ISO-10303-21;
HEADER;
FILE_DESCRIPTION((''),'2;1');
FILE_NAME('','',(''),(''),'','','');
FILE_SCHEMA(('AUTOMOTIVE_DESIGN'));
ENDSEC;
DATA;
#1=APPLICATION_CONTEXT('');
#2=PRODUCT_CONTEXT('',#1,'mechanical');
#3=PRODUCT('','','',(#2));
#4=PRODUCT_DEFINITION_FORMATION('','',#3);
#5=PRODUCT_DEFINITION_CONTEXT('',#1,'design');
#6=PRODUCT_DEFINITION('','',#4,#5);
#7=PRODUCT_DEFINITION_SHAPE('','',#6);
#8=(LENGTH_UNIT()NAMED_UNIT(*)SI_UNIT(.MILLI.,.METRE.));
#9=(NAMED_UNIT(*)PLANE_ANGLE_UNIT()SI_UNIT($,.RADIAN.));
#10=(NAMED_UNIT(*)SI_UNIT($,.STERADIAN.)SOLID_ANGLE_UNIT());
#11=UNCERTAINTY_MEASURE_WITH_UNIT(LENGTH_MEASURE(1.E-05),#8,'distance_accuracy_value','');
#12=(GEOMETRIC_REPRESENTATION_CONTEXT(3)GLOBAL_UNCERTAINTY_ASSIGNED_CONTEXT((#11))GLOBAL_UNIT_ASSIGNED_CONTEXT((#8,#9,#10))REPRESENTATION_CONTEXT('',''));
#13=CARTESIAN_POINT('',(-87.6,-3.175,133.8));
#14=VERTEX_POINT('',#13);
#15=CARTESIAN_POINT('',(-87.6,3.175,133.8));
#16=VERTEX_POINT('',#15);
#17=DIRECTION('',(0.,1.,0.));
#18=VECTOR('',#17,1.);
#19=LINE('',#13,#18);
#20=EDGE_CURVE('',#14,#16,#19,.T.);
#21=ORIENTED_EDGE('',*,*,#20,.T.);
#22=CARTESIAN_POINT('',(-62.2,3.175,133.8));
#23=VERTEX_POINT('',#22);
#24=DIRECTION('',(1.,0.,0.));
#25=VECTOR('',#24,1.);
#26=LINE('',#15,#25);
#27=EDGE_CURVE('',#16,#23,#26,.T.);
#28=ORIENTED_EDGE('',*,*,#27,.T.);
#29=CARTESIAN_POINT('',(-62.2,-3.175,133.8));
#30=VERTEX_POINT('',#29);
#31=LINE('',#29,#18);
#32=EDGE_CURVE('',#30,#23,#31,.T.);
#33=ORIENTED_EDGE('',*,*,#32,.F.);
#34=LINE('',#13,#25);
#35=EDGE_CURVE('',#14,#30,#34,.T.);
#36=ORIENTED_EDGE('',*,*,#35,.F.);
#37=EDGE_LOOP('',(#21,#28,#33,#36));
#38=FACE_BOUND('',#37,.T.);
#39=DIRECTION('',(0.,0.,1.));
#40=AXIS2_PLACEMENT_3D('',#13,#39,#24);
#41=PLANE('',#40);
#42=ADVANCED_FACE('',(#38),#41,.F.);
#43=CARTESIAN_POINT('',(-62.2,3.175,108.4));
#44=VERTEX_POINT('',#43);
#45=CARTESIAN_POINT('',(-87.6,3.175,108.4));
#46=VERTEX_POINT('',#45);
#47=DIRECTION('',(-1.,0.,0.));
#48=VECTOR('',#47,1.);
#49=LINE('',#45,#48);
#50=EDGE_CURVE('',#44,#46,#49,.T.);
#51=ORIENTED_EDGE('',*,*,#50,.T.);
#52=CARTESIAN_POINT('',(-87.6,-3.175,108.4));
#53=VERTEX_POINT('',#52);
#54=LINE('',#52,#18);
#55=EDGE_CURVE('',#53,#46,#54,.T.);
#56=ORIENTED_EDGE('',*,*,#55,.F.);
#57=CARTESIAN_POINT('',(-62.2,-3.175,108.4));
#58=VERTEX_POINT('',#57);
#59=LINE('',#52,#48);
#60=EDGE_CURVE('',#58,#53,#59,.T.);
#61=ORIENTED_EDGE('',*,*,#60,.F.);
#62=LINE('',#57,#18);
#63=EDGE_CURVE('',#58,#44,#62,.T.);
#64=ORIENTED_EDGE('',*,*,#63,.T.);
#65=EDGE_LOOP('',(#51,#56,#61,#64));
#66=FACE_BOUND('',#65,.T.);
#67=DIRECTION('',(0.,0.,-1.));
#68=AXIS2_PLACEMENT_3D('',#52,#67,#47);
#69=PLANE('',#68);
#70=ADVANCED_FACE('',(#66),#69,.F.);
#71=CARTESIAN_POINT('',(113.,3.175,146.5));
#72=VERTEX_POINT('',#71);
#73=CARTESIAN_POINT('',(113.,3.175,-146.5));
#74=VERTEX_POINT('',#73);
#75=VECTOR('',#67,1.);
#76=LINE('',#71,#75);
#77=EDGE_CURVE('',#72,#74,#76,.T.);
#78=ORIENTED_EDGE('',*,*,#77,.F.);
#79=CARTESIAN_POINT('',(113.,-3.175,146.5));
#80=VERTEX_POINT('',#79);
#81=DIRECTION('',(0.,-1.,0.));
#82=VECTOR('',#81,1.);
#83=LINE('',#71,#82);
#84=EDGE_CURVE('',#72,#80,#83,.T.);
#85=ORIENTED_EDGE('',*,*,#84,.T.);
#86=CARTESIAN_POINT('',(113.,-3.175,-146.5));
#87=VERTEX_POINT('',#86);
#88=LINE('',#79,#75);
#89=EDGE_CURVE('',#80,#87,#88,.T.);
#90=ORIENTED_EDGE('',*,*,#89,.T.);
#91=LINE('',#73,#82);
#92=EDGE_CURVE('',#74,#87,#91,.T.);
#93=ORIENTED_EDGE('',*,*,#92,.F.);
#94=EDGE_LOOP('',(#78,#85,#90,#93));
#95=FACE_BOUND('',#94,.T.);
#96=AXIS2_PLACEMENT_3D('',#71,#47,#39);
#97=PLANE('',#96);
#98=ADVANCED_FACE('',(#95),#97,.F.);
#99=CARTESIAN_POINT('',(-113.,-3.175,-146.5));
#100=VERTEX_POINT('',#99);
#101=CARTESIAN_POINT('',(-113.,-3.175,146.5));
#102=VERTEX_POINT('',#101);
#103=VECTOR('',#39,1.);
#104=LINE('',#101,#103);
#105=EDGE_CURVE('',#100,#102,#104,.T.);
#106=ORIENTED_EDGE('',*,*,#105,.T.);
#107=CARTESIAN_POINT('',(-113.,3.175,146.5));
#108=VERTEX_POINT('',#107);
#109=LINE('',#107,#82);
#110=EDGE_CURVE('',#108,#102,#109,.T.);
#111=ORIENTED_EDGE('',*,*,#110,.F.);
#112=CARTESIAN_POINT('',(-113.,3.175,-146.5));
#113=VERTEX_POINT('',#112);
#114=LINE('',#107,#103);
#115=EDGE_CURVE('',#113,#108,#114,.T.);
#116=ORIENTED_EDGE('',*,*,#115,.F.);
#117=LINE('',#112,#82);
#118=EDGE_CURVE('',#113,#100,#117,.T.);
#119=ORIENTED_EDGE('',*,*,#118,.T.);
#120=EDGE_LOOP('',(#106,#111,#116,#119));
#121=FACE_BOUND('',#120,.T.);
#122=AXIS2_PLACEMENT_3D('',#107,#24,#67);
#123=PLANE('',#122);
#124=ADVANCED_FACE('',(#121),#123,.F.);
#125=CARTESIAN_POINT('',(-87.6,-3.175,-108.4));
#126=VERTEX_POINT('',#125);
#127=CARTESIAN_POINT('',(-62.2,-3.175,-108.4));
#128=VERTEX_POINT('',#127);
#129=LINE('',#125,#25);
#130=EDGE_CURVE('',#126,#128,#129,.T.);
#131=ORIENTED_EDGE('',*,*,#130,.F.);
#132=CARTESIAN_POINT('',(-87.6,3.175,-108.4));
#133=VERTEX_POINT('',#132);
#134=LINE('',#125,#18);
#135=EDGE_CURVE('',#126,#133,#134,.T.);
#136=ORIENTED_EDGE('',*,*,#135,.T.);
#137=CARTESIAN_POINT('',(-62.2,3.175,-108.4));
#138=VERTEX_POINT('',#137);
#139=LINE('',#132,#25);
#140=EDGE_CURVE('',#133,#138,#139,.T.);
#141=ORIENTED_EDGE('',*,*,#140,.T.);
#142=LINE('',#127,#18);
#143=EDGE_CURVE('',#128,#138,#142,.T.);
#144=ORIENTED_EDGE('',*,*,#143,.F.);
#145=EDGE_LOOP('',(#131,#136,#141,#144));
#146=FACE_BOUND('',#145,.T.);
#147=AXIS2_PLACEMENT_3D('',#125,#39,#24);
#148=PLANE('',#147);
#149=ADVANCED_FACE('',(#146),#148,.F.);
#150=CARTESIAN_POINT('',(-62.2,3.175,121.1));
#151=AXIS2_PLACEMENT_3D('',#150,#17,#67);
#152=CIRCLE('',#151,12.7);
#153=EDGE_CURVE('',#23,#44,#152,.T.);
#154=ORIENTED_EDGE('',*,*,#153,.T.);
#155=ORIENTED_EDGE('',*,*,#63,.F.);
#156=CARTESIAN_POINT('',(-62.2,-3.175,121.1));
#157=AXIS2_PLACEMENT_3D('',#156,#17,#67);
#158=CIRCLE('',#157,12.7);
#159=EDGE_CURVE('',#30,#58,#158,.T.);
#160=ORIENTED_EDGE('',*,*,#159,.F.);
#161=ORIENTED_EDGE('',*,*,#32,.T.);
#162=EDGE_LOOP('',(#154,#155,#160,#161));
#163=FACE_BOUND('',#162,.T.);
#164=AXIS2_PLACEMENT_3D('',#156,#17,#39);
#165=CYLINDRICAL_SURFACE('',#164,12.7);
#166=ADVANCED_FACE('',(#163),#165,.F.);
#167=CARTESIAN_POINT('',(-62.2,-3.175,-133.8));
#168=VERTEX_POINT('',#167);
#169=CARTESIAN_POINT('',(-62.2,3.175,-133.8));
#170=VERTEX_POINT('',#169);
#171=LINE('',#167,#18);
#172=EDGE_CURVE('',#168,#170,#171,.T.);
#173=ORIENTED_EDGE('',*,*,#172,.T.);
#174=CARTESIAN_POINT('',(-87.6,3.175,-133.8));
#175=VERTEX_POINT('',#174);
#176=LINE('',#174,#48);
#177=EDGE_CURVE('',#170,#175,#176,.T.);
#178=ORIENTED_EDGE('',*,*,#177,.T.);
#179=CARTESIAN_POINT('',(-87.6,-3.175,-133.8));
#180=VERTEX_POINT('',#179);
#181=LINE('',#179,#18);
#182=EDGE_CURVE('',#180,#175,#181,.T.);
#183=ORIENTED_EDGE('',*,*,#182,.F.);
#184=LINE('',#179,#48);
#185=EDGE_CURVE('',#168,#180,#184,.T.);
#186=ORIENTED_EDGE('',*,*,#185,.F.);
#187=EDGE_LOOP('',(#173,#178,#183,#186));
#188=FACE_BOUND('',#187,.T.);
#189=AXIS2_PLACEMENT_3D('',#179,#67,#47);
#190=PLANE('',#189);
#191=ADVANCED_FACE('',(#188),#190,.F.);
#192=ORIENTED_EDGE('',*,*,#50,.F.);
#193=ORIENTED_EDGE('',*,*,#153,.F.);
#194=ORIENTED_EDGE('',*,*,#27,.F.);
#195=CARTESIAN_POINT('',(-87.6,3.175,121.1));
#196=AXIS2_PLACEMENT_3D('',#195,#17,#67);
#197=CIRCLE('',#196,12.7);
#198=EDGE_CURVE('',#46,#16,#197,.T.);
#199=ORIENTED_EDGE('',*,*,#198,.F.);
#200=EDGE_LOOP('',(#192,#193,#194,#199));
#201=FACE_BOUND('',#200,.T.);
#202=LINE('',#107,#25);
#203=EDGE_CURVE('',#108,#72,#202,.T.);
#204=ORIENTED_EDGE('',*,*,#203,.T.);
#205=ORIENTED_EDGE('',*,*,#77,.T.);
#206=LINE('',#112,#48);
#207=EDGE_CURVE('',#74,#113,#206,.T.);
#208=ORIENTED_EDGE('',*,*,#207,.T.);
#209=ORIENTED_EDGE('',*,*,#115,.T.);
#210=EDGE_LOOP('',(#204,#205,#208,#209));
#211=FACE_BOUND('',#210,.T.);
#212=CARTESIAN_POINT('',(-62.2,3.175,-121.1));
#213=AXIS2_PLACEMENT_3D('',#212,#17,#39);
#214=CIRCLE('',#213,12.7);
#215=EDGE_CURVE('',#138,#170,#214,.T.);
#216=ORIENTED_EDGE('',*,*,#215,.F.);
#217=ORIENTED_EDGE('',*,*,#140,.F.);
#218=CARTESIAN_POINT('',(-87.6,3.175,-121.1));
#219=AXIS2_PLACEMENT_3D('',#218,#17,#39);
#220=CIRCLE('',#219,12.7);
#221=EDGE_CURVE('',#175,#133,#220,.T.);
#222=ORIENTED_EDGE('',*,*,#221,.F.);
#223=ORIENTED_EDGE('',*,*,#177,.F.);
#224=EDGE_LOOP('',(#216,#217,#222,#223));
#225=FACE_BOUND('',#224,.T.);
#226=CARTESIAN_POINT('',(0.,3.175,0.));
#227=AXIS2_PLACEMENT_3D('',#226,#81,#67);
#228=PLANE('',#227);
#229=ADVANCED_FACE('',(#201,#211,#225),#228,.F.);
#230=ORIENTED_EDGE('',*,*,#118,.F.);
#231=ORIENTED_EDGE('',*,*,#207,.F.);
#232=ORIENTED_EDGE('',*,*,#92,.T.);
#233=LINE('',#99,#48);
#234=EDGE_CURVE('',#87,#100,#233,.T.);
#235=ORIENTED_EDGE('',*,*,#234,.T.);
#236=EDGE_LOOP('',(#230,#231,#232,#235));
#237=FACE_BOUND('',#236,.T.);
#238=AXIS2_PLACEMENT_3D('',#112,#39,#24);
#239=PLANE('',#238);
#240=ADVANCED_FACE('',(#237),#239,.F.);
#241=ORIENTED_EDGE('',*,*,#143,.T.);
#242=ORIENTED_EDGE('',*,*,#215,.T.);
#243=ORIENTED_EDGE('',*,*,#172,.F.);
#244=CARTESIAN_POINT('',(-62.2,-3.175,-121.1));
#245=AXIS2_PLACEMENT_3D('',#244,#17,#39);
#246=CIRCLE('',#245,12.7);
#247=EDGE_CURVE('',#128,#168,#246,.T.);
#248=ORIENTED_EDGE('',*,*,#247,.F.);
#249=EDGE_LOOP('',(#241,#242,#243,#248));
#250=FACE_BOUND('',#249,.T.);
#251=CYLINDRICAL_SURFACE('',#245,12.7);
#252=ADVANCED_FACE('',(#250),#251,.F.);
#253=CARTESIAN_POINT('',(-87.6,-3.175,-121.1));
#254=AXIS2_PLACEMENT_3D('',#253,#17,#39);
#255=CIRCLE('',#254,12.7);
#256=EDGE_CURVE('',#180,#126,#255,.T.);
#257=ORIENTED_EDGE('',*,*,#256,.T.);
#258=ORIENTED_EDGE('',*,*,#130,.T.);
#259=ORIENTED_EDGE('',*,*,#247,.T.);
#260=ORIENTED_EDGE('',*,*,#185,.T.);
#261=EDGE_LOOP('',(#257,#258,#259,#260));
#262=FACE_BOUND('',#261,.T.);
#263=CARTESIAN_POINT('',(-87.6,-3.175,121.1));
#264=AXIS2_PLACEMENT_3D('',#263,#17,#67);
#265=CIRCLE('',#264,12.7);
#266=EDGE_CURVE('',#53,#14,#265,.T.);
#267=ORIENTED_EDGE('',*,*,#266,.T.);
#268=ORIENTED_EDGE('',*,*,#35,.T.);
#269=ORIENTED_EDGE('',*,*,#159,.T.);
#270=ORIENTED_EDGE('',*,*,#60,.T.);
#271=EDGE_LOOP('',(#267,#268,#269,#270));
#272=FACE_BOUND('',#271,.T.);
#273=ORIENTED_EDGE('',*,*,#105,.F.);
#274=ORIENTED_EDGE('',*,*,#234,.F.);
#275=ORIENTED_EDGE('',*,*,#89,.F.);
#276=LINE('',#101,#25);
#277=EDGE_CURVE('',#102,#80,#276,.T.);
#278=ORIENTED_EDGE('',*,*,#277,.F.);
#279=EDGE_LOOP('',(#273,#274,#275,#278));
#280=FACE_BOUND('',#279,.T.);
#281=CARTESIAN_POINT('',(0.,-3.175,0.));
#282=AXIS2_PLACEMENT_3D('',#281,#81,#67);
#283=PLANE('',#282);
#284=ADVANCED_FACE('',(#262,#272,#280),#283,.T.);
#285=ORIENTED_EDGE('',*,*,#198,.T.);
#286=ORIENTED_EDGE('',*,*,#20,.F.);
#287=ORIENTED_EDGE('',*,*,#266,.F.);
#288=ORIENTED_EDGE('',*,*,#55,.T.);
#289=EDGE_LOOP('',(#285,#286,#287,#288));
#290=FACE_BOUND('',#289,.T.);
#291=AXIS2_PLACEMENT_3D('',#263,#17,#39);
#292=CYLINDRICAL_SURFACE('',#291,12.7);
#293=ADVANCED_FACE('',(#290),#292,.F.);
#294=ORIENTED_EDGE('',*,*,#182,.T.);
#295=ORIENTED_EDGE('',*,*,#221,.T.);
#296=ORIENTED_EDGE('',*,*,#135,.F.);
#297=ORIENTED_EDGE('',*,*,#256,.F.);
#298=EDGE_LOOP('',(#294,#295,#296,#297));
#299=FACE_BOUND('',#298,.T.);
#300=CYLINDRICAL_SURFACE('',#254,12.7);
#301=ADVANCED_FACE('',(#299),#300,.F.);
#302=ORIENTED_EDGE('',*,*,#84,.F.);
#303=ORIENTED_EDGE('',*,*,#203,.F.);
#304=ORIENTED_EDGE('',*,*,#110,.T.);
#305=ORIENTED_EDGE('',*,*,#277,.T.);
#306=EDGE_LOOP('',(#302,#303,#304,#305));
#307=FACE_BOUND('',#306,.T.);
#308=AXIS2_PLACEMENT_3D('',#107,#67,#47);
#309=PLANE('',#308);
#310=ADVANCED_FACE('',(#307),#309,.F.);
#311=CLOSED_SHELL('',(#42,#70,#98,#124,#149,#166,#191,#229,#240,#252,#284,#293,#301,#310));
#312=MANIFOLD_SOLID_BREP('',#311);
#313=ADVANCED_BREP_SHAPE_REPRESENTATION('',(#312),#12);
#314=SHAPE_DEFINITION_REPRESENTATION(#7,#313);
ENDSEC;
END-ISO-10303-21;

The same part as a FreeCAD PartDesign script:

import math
import FreeCAD as App
import Part
import Sketcher

doc = App.newDocument("Part")
body = doc.addObject("PartDesign::Body", "Body")

# Sketch on XZ plane
sketch1 = doc.addObject("Sketcher::SketchObject", "Sketch")
body.addObject(sketch1)
sketch1.AttachmentSupport = (doc.XZ_Plane, [""])
sketch1.MapMode = "FlatFace"
sketch1.addGeometry(Part.LineSegment(App.Vector(-113, -146, 0), App.Vector(-113, 146, 0)), False)
sketch1.addGeometry(Part.LineSegment(App.Vector(-113, 146, 0), App.Vector(113, 146, 0)), False)
sketch1.addGeometry(Part.LineSegment(App.Vector(113, 146, 0), App.Vector(113, -146, 0)), False)
sketch1.addGeometry(Part.LineSegment(App.Vector(113, -146, 0), App.Vector(-113, -146, 0)), False)
sketch1.addConstraint(Sketcher.Constraint("Coincident", 0, 2, 1, 1))
sketch1.addConstraint(Sketcher.Constraint("Coincident", 1, 2, 2, 1))
sketch1.addConstraint(Sketcher.Constraint("Coincident", 2, 2, 3, 1))
sketch1.addConstraint(Sketcher.Constraint("Coincident", 3, 2, 0, 1))
sketch1.addConstraint(Sketcher.Constraint("Vertical", 0))
sketch1.addConstraint(Sketcher.Constraint("Horizontal", 1))
sketch1.addConstraint(Sketcher.Constraint("Vertical", 2))
sketch1.addConstraint(Sketcher.Constraint("Horizontal", 3))
sketch1.addConstraint(Sketcher.Constraint("Symmetric", 0, 2, 2, 2, -1, 1))
sketch1.addConstraint(Sketcher.Constraint("DistanceX", 1, 1, 1, 2, 226.0))
sketch1.addConstraint(Sketcher.Constraint("DistanceY", 0, 1, 0, 2, 293.0))
pad1 = doc.addObject("PartDesign::Pad", "Pad")
body.addObject(pad1)
pad1.Profile = sketch1
pad1.Length = 6.35
pad1.Midplane = True

# Sketch on XZ plane
sketch2 = doc.addObject("Sketcher::SketchObject", "Sketch001")
body.addObject(sketch2)
sketch2.AttachmentSupport = (doc.XZ_Plane, [""])
sketch2.MapMode = "FlatFace"
sketch2.AttachmentOffset = App.Placement(App.Vector(0, 0, -3.175), App.Rotation())
sketch2.addGeometry(Part.LineSegment(App.Vector(-62, -134, 0), App.Vector(-88, -134, 0)), False)
sketch2.addGeometry(Part.ArcOfCircle(Part.Circle(App.Vector(-88, -121, 0), App.Vector(0, 0, 1), 13), math.radians(90), math.radians(270)), False)
sketch2.addGeometry(Part.LineSegment(App.Vector(-88, -108, 0), App.Vector(-62, -108, 0)), False)
sketch2.addGeometry(Part.ArcOfCircle(Part.Circle(App.Vector(-62, -121, 0), App.Vector(0, 0, 1), 13), math.radians(-90), math.radians(90)), False)
sketch2.addGeometry(Part.LineSegment(App.Vector(-88, 134, 0), App.Vector(-62, 134, 0)), False)
sketch2.addGeometry(Part.ArcOfCircle(Part.Circle(App.Vector(-62, 121, 0), App.Vector(0, 0, 1), 13), math.radians(-90), math.radians(90)), False)
sketch2.addGeometry(Part.LineSegment(App.Vector(-62, 108, 0), App.Vector(-88, 108, 0)), False)
sketch2.addGeometry(Part.ArcOfCircle(Part.Circle(App.Vector(-88, 121, 0), App.Vector(0, 0, 1), 13), math.radians(90), math.radians(270)), False)
sketch2.addConstraint(Sketcher.Constraint("Tangent", 0, 2, 1, 2))
sketch2.addConstraint(Sketcher.Constraint("Tangent", 1, 1, 2, 1))
sketch2.addConstraint(Sketcher.Constraint("Tangent", 2, 2, 3, 2))
sketch2.addConstraint(Sketcher.Constraint("Tangent", 3, 1, 0, 1))
sketch2.addConstraint(Sketcher.Constraint("Tangent", 4, 2, 5, 2))
sketch2.addConstraint(Sketcher.Constraint("Tangent", 5, 1, 6, 1))
sketch2.addConstraint(Sketcher.Constraint("Tangent", 6, 2, 7, 2))
sketch2.addConstraint(Sketcher.Constraint("Tangent", 7, 1, 4, 1))
sketch2.addConstraint(Sketcher.Constraint("Horizontal", 0))
sketch2.addConstraint(Sketcher.Constraint("Horizontal", 2))
sketch2.addConstraint(Sketcher.Constraint("Horizontal", 4))
sketch2.addConstraint(Sketcher.Constraint("Horizontal", 6))
sketch2.addConstraint(Sketcher.Constraint("Equal", 3, 5))
sketch2.addConstraint(Sketcher.Constraint("Symmetric", 3, 3, 5, 3, -1))
sketch2.addConstraint(Sketcher.Constraint("Vertical", 1, 3, 7, 3))
sketch2.addConstraint(Sketcher.Constraint("Radius", 1, 12.7))
sketch2.addConstraint(Sketcher.Constraint("DistanceX", 0, 2, 0, 1, 25.4))
sketch2.addConstraint(Sketcher.Constraint("DistanceX", 1, 3, -1, 1, 87.6))
sketch2.addConstraint(Sketcher.Constraint("DistanceY", 1, 3, -1, 1, 121.1))
pocket1 = doc.addObject("PartDesign::Pocket", "Pocket")
body.addObject(pocket1)
pocket1.Profile = sketch2
pocket1.Type = "ThroughAll"
pocket1.Reversed = True

doc.recompute()
